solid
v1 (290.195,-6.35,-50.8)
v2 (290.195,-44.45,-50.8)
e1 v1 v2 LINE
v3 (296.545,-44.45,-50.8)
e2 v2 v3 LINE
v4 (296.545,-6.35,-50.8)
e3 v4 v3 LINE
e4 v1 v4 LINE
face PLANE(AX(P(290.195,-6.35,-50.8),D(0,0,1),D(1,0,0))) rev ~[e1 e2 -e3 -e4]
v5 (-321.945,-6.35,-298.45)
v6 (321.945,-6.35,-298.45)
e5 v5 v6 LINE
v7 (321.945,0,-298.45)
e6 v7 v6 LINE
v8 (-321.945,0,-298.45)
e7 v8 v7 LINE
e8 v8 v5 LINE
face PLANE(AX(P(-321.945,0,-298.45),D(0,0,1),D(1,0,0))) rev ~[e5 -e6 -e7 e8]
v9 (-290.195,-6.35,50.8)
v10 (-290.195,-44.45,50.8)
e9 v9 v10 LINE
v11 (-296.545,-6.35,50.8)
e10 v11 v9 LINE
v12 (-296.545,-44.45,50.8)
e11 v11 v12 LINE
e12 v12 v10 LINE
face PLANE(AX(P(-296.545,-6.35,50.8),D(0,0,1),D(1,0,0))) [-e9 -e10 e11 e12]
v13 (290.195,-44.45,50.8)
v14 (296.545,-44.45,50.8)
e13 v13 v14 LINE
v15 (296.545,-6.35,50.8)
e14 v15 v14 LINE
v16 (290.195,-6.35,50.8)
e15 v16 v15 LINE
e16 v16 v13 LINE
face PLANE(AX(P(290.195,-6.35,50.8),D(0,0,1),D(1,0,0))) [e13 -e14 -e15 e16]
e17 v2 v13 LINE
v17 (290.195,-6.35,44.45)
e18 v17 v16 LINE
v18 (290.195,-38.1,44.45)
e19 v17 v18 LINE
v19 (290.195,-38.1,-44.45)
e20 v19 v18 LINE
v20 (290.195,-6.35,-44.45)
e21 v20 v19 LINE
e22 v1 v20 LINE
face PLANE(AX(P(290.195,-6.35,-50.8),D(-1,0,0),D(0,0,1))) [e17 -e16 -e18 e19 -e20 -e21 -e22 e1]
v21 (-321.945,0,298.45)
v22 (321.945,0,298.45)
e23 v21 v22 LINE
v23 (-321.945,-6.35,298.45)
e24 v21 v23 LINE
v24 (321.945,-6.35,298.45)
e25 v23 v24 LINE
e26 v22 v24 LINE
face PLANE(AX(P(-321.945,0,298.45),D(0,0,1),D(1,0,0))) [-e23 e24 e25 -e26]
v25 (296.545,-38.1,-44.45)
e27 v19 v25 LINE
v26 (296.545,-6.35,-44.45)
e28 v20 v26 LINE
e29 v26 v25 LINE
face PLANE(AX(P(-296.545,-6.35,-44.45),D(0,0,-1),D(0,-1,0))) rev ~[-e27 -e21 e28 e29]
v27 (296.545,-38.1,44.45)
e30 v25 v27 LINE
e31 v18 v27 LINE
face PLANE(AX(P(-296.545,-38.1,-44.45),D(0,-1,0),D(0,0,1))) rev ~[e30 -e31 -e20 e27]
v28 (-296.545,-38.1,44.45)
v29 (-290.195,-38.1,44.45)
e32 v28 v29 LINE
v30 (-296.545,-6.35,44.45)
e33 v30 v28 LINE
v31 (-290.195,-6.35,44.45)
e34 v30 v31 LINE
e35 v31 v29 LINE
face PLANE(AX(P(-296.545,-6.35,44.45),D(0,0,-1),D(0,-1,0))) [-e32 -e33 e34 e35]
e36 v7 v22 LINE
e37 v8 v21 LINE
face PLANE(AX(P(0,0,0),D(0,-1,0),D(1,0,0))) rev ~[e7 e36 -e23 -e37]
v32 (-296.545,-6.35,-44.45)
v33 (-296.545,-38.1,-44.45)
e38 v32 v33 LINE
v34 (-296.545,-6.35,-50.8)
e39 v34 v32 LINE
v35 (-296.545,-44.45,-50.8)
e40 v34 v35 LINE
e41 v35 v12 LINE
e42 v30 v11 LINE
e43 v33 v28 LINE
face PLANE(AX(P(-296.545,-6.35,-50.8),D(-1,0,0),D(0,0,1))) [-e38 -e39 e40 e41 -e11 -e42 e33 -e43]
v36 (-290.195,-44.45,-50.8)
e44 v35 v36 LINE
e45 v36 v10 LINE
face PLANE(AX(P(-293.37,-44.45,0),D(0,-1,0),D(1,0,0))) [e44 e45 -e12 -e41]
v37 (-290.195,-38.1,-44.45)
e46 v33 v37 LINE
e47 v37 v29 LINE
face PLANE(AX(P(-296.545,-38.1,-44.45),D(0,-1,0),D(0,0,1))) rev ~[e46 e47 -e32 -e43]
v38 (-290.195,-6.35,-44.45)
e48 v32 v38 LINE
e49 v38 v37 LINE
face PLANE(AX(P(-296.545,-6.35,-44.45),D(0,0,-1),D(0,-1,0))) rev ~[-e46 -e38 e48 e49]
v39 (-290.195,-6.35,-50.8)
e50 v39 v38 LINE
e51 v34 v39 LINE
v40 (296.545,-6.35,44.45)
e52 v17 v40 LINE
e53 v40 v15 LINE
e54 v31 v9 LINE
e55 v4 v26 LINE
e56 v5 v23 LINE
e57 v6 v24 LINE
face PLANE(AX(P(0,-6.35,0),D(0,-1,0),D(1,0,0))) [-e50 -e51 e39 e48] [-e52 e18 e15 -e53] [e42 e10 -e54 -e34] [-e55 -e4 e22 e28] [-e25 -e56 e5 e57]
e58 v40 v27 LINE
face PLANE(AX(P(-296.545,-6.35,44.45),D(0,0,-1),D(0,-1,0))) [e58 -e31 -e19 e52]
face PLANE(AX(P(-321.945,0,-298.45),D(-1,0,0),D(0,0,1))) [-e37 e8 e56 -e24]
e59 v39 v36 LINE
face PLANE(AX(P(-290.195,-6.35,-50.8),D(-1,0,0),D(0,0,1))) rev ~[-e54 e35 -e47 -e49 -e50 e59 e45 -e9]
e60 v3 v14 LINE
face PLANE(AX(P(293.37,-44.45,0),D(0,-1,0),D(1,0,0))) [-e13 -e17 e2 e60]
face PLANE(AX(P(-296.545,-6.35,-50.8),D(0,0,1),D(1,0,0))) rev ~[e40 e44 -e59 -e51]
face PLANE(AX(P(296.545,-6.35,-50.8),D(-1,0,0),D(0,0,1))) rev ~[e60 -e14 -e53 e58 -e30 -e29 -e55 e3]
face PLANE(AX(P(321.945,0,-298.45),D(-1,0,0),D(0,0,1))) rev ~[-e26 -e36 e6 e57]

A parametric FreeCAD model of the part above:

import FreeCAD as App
import Part
import Sketcher
from FreeCAD import Vector
Q = App.Units.Quantity

doc = App.newDocument("Part")
body = doc.addObject("PartDesign::Body", "Body")

sketch1 = doc.addObject("Sketcher::SketchObject", "Sketch")
body.addObject(sketch1)
sketch1.AttachmentSupport = (doc.XZ_Plane, [""])
sketch1.MapMode = "FlatFace"
sketch1.addGeometry([
    Part.LineSegment(Vector(-321.945, 298.45, 0), Vector(-321.945, -298.45, 0)),
    Part.LineSegment(Vector(-321.945, -298.45, 0), Vector(321.945, -298.45, 0)),
    Part.LineSegment(Vector(321.945, -298.45, 0), Vector(321.945, 298.45, 0)),
    Part.LineSegment(Vector(321.945, 298.45, 0), Vector(-321.945, 298.45, 0)),
], False)
sketch1.addConstraint([
    Sketcher.Constraint("Coincident", 0, 2, 1, 1),
    Sketcher.Constraint("Coincident", 1, 2, 2, 1),
    Sketcher.Constraint("Coincident", 2, 2, 3, 1),
    Sketcher.Constraint("Coincident", 3, 2, 0, 1),
    Sketcher.Constraint("Vertical", 0),
    Sketcher.Constraint("Horizontal", 1),
    Sketcher.Constraint("Vertical", 2),
    Sketcher.Constraint("Horizontal", 3),
    Sketcher.Constraint("Symmetric", 0, 2, 2, 2, -1, 1),
    Sketcher.Constraint("DistanceY", 0, 2, 0, 1, Q("23.5 in")),
    Sketcher.Constraint("DistanceX", 1, 1, 1, 2, Q("25.35 in")),
])
pad1 = doc.addObject("PartDesign::Pad", "Pad")
body.addObject(pad1)
pad1.Profile = sketch1
pad1.Length = Q("0.25 in")

sketch2 = doc.addObject("Sketcher::SketchObject", "Sketch001")
body.addObject(sketch2)
sketch2.AttachmentSupport = (doc.XZ_Plane, [""])
sketch2.MapMode = "FlatFace"
sketch2.AttachmentOffset = App.Placement(Vector(0, 0, 0.25 * 25.4), App.Rotation())
sketch2.addGeometry([
    Part.LineSegment(Vector(-296.545, 50.8, 0), Vector(-296.545, -50.8, 0)),
    Part.LineSegment(Vector(-296.545, -50.8, 0), Vector(-290.195, -50.8, 0)),
    Part.LineSegment(Vector(-290.195, -50.8, 0), Vector(-290.195, 50.8, 0)),
    Part.LineSegment(Vector(-290.195, 50.8, 0), Vector(-296.545, 50.8, 0)),
    Part.LineSegment(Vector(290.195, 50.8, 0), Vector(290.195, -50.8, 0)),
    Part.LineSegment(Vector(290.195, -50.8, 0), Vector(296.545, -50.8, 0)),
    Part.LineSegment(Vector(296.545, -50.8, 0), Vector(296.545, 50.8, 0)),
    Part.LineSegment(Vector(296.545, 50.8, 0), Vector(290.195, 50.8, 0)),
], False)
sketch2.addConstraint([
    Sketcher.Constraint("Coincident", 0, 2, 1, 1),
    Sketcher.Constraint("Coincident", 1, 2, 2, 1),
    Sketcher.Constraint("Coincident", 2, 2, 3, 1),
    Sketcher.Constraint("Coincident", 3, 2, 0, 1),
    Sketcher.Constraint("Coincident", 4, 2, 5, 1),
    Sketcher.Constraint("Coincident", 5, 2, 6, 1),
    Sketcher.Constraint("Coincident", 6, 2, 7, 1),
    Sketcher.Constraint("Coincident", 7, 2, 4, 1),
    Sketcher.Constraint("Vertical", 0),
    Sketcher.Constraint("Horizontal", 1),
    Sketcher.Constraint("Vertical", 2),
    Sketcher.Constraint("Horizontal", 3),
    Sketcher.Constraint("Vertical", 4),
    Sketcher.Constraint("Horizontal", 5),
    Sketcher.Constraint("Vertical", 6),
    Sketcher.Constraint("Horizontal", 7),
    Sketcher.Constraint("Symmetric", 2, 2, 4, 2, -1, 1),
    Sketcher.Constraint("Symmetric", 0, 2, 6, 2, -1, 1),
    Sketcher.Constraint("Horizontal", 1, 2, 4, 2),
    Sketcher.Constraint("DistanceY", 0, 2, 0, 1, Q("4 in")),
    Sketcher.Constraint("DistanceX", 1, 1, 1, 2, Q("0.25 in")),
    Sketcher.Constraint("DistanceX", 0, 2, 4, 2, Q("23.1 in")),
])
pad2 = doc.addObject("PartDesign::Pad", "Pad001")
body.addObject(pad2)
pad2.Profile = sketch2
pad2.Length = Q("1.5 in")

sketch3 = doc.addObject("Sketcher::SketchObject", "Sketch002")
body.addObject(sketch3)
sketch3.AttachmentSupport = (doc.YZ_Plane, [""])
sketch3.MapMode = "FlatFace"
sketch3.AttachmentOffset = App.Placement(Vector(0, 0, -11.675 * 25.4), App.Rotation())
sketch3.addGeometry([
    Part.LineSegment(Vector(-6.35, 44.45, 0), Vector(-6.35, -44.45, 0)),
    Part.LineSegment(Vector(-6.35, -44.45, 0), Vector(-38.1, -44.45, 0)),
    Part.LineSegment(Vector(-38.1, -44.45, 0), Vector(-38.1, 44.45, 0)),
    Part.LineSegment(Vector(-38.1, 44.45, 0), Vector(-6.35, 44.45, 0)),
], False)
sketch3.addConstraint([
    Sketcher.Constraint("Coincident", 0, 2, 1, 1),
    Sketcher.Constraint("Coincident", 1, 2, 2, 1),
    Sketcher.Constraint("Coincident", 2, 2, 3, 1),
    Sketcher.Constraint("Coincident", 3, 2, 0, 1),
    Sketcher.Constraint("Vertical", 0),
    Sketcher.Constraint("Horizontal", 1),
    Sketcher.Constraint("Vertical", 2),
    Sketcher.Constraint("Horizontal", 3),
    Sketcher.Constraint("DistanceY", 0, 2, 0, 1, Q("3.5 in")),
    Sketcher.Constraint("DistanceX", 1, 2, 1, 1, Q("1.25 in")),
    Sketcher.Constraint("DistanceX", 1, 2, -1, 1, Q("1.5 in")),
    Sketcher.Constraint("DistanceY", 0, 2, -1, 1, Q("1.75 in")),
])
pocket1 = doc.addObject("PartDesign::Pocket", "Pocket")
body.addObject(pocket1)
pocket1.Profile = sketch3
pocket1.Length = Q("24 in")
pocket1.Reversed = True

doc.recompute()
